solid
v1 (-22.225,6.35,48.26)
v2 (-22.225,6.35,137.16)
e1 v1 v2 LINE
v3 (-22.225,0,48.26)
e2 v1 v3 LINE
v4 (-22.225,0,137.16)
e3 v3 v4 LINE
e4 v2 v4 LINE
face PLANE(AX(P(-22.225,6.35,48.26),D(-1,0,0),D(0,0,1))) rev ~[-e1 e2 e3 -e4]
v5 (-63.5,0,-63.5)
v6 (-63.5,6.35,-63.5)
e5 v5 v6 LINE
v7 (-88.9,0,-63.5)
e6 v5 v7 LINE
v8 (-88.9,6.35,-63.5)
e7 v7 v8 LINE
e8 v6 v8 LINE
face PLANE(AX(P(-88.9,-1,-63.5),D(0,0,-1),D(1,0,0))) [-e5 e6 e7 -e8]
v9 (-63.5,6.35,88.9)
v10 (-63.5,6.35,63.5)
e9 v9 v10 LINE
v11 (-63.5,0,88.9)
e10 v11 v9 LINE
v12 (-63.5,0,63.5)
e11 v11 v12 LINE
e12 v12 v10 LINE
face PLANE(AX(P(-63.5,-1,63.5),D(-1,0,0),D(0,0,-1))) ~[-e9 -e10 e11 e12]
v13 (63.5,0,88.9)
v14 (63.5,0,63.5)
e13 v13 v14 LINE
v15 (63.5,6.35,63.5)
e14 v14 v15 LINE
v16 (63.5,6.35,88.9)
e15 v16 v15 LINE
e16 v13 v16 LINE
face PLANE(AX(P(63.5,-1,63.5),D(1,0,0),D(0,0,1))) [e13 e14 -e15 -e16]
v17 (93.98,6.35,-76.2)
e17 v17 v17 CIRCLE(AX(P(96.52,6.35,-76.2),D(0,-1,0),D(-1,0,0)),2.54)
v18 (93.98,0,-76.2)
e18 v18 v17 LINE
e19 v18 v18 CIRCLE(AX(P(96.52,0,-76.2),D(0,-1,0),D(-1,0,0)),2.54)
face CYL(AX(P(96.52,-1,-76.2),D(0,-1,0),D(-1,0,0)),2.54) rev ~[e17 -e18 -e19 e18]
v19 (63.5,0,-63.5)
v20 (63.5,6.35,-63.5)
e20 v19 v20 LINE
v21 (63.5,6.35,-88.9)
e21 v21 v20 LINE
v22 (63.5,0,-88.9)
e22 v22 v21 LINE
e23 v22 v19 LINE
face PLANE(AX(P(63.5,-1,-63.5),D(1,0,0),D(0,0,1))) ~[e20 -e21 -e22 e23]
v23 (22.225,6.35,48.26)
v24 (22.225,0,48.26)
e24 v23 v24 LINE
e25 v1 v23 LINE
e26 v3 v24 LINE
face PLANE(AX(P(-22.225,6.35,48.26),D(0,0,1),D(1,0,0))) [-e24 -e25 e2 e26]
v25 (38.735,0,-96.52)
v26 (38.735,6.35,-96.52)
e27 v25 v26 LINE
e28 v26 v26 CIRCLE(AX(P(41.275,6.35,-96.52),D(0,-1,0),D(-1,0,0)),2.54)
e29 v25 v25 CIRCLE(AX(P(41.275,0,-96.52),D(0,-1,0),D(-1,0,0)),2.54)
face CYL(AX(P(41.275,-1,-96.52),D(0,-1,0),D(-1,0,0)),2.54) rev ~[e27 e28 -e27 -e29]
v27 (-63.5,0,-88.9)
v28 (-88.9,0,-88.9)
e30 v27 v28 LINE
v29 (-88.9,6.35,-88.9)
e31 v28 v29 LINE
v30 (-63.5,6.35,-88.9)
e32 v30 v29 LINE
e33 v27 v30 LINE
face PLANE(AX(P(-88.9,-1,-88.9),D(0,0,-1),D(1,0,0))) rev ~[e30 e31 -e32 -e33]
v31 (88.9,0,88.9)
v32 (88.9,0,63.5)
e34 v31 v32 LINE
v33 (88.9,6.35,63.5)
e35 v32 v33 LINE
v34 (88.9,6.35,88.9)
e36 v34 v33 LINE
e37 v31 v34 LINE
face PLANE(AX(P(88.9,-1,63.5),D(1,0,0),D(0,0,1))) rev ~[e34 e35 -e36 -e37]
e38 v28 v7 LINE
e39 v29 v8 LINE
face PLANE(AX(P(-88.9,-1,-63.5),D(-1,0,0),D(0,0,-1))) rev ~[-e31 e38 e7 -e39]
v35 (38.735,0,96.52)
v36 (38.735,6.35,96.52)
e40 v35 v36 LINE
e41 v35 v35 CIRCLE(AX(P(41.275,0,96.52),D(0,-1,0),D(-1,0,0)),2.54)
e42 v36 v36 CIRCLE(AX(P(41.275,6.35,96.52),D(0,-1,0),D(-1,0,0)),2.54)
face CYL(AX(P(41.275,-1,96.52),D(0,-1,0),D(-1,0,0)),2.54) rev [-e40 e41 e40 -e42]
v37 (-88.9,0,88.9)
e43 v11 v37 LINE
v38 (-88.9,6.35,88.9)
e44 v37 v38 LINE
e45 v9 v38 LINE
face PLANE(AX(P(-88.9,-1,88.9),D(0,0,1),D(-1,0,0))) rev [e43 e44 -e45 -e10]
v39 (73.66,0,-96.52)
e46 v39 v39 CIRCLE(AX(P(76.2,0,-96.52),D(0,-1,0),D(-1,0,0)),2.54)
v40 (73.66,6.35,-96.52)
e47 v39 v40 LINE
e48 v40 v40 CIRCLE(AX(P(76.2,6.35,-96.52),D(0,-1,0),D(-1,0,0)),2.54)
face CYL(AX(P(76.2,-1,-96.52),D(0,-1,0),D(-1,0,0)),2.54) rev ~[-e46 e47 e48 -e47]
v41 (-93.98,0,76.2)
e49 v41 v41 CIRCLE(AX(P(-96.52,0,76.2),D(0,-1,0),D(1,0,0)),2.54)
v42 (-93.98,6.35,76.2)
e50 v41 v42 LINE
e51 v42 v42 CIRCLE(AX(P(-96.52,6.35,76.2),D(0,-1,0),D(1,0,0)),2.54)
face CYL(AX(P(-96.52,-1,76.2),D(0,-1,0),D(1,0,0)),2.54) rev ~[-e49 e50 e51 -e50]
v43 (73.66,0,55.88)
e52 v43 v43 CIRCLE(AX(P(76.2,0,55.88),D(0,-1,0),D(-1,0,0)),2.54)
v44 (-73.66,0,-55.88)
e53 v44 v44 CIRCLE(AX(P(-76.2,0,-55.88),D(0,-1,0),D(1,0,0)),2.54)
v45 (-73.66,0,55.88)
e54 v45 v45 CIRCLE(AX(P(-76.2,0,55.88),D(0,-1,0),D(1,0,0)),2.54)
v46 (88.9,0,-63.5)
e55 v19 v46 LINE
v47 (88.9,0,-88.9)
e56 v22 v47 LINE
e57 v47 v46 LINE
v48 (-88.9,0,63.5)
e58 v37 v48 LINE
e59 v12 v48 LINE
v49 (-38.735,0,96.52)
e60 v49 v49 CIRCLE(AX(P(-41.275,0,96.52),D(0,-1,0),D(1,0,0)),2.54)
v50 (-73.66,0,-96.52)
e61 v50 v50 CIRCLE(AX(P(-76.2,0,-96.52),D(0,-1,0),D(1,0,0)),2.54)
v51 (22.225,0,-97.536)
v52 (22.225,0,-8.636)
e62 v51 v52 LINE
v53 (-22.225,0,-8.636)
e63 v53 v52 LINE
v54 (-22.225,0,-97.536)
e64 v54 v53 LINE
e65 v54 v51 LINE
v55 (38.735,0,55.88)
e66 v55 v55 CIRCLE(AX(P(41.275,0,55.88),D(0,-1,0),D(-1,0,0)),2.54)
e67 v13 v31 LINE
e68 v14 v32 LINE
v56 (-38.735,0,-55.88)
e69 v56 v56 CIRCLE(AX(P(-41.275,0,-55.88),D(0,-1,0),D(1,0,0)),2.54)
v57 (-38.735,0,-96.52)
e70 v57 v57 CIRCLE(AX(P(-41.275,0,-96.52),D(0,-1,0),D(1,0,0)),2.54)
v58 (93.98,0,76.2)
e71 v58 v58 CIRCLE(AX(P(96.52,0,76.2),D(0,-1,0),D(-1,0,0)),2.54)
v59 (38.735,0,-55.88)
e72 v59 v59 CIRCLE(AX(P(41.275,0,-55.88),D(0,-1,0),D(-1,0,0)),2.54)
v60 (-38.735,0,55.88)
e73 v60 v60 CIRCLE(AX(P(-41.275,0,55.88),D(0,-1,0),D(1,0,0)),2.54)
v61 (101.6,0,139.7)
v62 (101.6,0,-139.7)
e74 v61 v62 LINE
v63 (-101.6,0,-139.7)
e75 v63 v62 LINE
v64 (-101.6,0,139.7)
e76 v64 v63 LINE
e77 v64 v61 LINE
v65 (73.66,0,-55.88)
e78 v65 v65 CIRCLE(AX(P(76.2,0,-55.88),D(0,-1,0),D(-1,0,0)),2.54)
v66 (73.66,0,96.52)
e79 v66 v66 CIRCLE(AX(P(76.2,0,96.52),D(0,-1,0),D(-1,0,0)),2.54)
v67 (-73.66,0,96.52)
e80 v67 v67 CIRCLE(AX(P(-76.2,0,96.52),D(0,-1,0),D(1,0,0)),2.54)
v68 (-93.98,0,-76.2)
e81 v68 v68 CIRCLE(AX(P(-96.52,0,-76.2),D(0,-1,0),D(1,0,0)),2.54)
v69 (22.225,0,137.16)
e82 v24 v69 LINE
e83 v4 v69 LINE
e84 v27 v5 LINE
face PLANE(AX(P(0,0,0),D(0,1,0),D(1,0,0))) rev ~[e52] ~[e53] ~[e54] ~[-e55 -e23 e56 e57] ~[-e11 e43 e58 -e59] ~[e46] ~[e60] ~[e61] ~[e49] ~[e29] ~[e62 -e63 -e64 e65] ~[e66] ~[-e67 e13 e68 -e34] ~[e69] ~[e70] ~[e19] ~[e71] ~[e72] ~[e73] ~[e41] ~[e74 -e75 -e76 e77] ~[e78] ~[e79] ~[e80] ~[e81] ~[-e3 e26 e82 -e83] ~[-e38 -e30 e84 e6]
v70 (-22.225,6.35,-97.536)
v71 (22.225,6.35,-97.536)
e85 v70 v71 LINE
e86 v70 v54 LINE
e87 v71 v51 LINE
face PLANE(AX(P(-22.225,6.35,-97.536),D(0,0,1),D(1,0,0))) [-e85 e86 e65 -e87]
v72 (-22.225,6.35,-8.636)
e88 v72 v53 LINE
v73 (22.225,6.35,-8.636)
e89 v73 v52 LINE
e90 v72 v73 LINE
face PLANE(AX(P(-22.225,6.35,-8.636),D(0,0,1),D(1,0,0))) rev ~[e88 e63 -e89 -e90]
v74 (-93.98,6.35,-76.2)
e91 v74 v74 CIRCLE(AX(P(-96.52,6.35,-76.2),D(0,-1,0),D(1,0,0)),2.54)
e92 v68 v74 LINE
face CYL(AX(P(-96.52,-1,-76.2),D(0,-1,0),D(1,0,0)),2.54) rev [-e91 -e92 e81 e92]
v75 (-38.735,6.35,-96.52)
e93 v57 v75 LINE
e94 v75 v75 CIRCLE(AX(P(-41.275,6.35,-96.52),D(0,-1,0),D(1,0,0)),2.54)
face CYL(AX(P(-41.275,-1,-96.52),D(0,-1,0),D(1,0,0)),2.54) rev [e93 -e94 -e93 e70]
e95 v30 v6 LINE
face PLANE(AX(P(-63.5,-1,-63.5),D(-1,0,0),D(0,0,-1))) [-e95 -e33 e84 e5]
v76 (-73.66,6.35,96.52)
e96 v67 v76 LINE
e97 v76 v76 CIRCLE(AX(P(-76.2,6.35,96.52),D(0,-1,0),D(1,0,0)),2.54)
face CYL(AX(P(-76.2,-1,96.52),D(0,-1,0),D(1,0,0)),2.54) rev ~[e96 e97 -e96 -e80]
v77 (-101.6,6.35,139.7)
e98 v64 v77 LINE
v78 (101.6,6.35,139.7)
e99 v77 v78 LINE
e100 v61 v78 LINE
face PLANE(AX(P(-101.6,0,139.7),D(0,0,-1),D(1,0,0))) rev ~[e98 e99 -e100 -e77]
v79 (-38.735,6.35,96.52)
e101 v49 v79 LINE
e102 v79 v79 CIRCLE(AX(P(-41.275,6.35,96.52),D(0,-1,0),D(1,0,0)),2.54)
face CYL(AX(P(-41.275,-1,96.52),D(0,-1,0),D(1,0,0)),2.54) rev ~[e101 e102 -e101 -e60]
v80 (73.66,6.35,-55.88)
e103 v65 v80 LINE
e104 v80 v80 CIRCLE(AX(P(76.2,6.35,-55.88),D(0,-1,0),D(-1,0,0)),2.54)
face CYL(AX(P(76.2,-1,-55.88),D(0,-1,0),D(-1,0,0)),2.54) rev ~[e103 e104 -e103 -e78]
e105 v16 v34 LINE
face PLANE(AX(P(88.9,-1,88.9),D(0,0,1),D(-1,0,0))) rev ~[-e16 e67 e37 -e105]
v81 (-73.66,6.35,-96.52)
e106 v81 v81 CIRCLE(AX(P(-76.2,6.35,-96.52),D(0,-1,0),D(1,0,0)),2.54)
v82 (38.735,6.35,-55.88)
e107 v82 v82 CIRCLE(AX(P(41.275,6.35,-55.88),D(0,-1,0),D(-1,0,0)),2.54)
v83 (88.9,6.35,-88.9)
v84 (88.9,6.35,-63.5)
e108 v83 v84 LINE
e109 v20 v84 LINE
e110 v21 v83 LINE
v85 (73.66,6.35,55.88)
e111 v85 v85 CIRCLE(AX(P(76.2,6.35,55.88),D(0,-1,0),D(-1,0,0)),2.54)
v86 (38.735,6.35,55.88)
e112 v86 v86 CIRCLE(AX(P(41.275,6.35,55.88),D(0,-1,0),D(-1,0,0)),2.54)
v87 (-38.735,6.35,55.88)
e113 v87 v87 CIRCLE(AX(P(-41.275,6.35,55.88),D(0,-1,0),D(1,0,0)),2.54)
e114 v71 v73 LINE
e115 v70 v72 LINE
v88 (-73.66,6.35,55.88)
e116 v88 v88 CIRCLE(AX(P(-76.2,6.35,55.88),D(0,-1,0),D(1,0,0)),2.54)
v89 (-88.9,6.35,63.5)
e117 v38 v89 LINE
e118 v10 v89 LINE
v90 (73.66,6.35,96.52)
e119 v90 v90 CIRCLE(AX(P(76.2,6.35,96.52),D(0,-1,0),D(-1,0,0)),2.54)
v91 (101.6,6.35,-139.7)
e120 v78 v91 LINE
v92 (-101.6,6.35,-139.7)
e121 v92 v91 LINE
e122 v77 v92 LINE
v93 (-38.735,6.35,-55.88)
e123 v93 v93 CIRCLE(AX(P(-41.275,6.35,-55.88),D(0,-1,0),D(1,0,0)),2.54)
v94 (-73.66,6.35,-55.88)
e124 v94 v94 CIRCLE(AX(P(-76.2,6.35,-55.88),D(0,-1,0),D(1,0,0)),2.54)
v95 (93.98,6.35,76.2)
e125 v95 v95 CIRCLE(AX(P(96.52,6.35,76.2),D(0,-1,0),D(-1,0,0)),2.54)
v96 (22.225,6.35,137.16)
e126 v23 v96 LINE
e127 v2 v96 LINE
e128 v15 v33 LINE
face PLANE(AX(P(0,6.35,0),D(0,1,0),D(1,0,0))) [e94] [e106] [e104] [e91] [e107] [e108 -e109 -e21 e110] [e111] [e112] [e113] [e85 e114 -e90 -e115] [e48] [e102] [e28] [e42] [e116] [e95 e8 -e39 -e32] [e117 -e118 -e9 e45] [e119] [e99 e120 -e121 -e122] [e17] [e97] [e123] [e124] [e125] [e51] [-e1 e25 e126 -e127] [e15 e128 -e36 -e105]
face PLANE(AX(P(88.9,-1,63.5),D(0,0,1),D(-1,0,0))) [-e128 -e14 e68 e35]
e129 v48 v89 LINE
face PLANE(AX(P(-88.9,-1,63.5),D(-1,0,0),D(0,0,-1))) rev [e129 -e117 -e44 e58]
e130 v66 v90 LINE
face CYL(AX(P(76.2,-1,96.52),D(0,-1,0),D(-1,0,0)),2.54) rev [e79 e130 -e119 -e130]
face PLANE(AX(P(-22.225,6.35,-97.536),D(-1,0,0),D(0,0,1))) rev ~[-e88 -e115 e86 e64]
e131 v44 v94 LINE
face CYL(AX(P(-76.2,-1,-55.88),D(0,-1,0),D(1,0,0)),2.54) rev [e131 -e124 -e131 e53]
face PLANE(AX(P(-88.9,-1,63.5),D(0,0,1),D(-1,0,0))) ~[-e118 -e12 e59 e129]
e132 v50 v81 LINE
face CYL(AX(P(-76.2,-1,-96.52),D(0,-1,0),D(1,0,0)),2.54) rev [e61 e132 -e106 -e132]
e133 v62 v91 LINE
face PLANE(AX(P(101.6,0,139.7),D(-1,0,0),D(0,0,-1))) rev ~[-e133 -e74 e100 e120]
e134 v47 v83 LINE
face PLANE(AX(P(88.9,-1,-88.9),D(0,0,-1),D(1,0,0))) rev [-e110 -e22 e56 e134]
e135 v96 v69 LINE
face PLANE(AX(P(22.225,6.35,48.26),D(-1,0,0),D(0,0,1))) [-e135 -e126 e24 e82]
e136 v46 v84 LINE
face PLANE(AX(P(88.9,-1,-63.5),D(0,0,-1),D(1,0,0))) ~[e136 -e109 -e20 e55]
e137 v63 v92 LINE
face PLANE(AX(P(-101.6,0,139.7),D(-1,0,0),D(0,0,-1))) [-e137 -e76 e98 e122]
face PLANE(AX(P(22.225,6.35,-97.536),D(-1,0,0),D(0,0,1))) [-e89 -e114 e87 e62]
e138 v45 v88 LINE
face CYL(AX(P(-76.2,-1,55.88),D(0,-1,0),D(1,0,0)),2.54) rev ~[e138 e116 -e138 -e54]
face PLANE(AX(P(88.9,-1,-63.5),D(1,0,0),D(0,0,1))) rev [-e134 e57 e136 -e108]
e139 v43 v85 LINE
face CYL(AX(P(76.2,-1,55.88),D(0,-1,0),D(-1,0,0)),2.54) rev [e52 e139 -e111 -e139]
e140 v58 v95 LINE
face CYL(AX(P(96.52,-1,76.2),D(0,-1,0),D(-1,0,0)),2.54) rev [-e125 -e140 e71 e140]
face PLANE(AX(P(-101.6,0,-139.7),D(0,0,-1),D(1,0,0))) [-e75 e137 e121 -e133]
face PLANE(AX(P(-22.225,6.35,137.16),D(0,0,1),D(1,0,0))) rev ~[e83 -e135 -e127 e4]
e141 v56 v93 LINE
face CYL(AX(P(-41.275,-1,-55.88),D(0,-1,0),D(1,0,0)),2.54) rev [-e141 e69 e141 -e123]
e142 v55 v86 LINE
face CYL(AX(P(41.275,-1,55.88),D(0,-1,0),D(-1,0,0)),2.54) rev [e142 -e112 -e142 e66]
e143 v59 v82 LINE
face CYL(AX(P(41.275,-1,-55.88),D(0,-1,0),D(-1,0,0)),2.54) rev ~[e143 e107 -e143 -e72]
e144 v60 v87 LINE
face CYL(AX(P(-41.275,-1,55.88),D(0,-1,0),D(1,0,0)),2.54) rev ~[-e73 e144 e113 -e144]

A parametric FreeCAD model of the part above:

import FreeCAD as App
import Part
import Sketcher

V = App.Vector
Q = App.Units.Quantity


def add_polygon(sketch, points):
    """Adds a closed chain of lines whose ends are joined by coincident constraints."""
    first, n = sketch.GeometryCount, len(points)
    for a, b in zip(points, points[1:] + points[:1]):
        sketch.addGeometry(Part.LineSegment(App.Vector(*a, 0), App.Vector(*b, 0)), False)
    for i in range(n):
        sketch.addConstraint(Sketcher.Constraint("Coincident", first + i, 2, first + (i + 1) % n, 1))

doc = App.newDocument("Part")
params = doc.addObject("Spreadsheet::Sheet", "Params")
for row, (alias, value) in enumerate([
    ("sketch1_width", "8 in"),
    ("sketch1_height", "11 in"),
    ("pad1_length", "0.25 in"),
    ("sketch2_diameter", "0.2 in"),
    ("sketch2_width", "1 in"),
    ("pocket1_length", "8.35 mm"),
    ("sketch3_diameter", "0.2 in"),
    ("sketch3_width", "1 in"),
    ("pocket2_length", "8.35 mm"),
    ("sketch4_height", "3.5 in"),
    ("sketch4_width", "1.75 in"),
], start=1):
    params.set(f"A{row}", alias)
    params.set(f"B{row}", "=" + value)
    params.setAlias(f"B{row}", alias)

body = doc.addObject("PartDesign::Body", "Body")

# Sketch on XZ plane
sketch1 = doc.addObject("Sketcher::SketchObject", "Sketch")
body.addObject(sketch1)
sketch1.AttachmentSupport = (doc.XZ_Plane, [""])
sketch1.MapMode = "FlatFace"
add_polygon(sketch1, [(-102, -140), (-102, 140), (102, 140), (102, -140)])  # lines 0-3
sketch1.addConstraint(Sketcher.Constraint("Vertical", 0))
sketch1.addConstraint(Sketcher.Constraint("Horizontal", 1))
sketch1.addConstraint(Sketcher.Constraint("Vertical", 2))
sketch1.addConstraint(Sketcher.Constraint("Horizontal", 3))
sketch1.addConstraint(Sketcher.Constraint("Symmetric", 0, 2, 2, 2, -1, 1))
sketch1.addConstraint(Sketcher.Constraint("DistanceX", 1, 1, 1, 2, Q("8 in")))
sketch1.addConstraint(Sketcher.Constraint("DistanceY", 0, 1, 0, 2, Q("11 in")))
sketch1.setExpression("Constraints[9]", "Params.sketch1_width")
sketch1.setExpression("Constraints[10]", "Params.sketch1_height")
pad1 = doc.addObject("PartDesign::Pad", "Pad")
body.addObject(pad1)
pad1.Profile = sketch1
pad1.setExpression("Length", "Params.pad1_length")
pad1.Reversed = True

# Sketch on XZ plane
sketch2 = doc.addObject("Sketcher::SketchObject", "Sketch001")
body.addObject(sketch2)
sketch2.AttachmentSupport = (doc.XZ_Plane, [""])
sketch2.MapMode = "FlatFace"
sketch2.AttachmentOffset = App.Placement(V(0, 0, 1), App.Rotation())
sketch2.addGeometry(Part.Circle(V(-41.3, -55.9, 0), V(0, 0, 1), 2.5), False)  # 0
sketch2.addGeometry(Part.Circle(V(-41.3, -96.5, 0), V(0, 0, 1), 2.5), False)  # 1
sketch2.addGeometry(Part.Circle(V(-76.2, -55.9, 0), V(0, 0, 1), 2.5), False)  # 2
sketch2.addGeometry(Part.Circle(V(-96.5, -76.2, 0), V(0, 0, 1), 2.5), False)  # 3
sketch2.addGeometry(Part.Circle(V(-76.2, -96.5, 0), V(0, 0, 1), 2.5), False)  # 4
add_polygon(sketch2, [(-88.9, -88.9), (-88.9, -63.5), (-63.5, -63.5), (-63.5, -88.9)])  # lines 5-8
sketch2.addConstraint(Sketcher.Constraint("Vertical", 5))
sketch2.addConstraint(Sketcher.Constraint("Horizontal", 6))
sketch2.addConstraint(Sketcher.Constraint("Vertical", 7))
sketch2.addConstraint(Sketcher.Constraint("Horizontal", 8))
sketch2.addConstraint(Sketcher.Constraint("Equal", 0, 1))
sketch2.addConstraint(Sketcher.Constraint("Equal", 1, 2))
sketch2.addConstraint(Sketcher.Constraint("Equal", 2, 3))
sketch2.addConstraint(Sketcher.Constraint("Equal", 3, 4))
sketch2.addConstraint(Sketcher.Constraint("Horizontal", 0, 3, 2, 3))
sketch2.addConstraint(Sketcher.Constraint("Horizontal", 1, 3, 4, 3))
sketch2.addConstraint(Sketcher.Constraint("Vertical", 0, 3, 1, 3))
sketch2.addConstraint(Sketcher.Constraint("Vertical", 2, 3, 4, 3))
sketch2.addConstraint(Sketcher.Constraint("Equal", 8, 5))
sketch2.addConstraint(Sketcher.Constraint("Diameter", 0, Q("0.2 in")))
sketch2.addConstraint(Sketcher.Constraint("DistanceX", 6, 1, 6, 2, Q("1 in")))
sketch2.addConstraint(Sketcher.Constraint("DistanceX", 2, 3, -1, 1, Q("3 in")))
sketch2.addConstraint(Sketcher.Constraint("DistanceY", 3, 3, -1, 1, Q("3 in")))
sketch2.addConstraint(Sketcher.Constraint("DistanceY", 0, 3, -1, 1, Q("2.2 in")))
sketch2.addConstraint(Sketcher.Constraint("DistanceY", 1, 3, -1, 1, Q("3.8 in")))
sketch2.addConstraint(Sketcher.Constraint("DistanceX", 3, 3, -1, 1, Q("3.8 in")))
sketch2.addConstraint(Sketcher.Constraint("DistanceX", 5, 2, -1, 1, Q("3.5 in")))
sketch2.addConstraint(Sketcher.Constraint("DistanceY", 5, 2, -1, 1, Q("2.5 in")))
sketch2.addConstraint(Sketcher.Constraint("DistanceX", 0, 3, -1, 1, Q("1.625 in")))
sketch2.setExpression("Constraints[17]", "Params.sketch2_diameter")
sketch2.setExpression("Constraints[18]", "Params.sketch2_width")
pocket1 = doc.addObject("PartDesign::Pocket", "Pocket")
body.addObject(pocket1)
pocket1.Profile = sketch2
pocket1.setExpression("Length", "Params.pocket1_length")
doc.recompute()

mirrored = doc.addObject("PartDesign::Mirrored", "Mirrored")
body.addObject(mirrored)
mirrored.Originals = [pocket1]
mirrored.MirrorPlane = (doc.XY_Plane, [""])
body.Tip = mirrored
doc.recompute()

mirrored2 = doc.addObject("PartDesign::Mirrored", "Mirrored001")
body.addObject(mirrored2)
mirrored2.Originals = [pocket1]
mirrored2.MirrorPlane = (doc.YZ_Plane, [""])
body.Tip = mirrored2

# Sketch on XZ plane
sketch3 = doc.addObject("Sketcher::SketchObject", "Sketch002")
body.addObject(sketch3)
sketch3.AttachmentSupport = (doc.XZ_Plane, [""])
sketch3.MapMode = "FlatFace"
sketch3.AttachmentOffset = App.Placement(V(0, 0, 1), App.Rotation())
sketch3.addGeometry(Part.Circle(V(41.3, 55.9, 0), V(0, 0, 1), 2.5), False)  # 0
sketch3.addGeometry(Part.Circle(V(41.3, 96.5, 0), V(0, 0, 1), 2.5), False)  # 1
sketch3.addGeometry(Part.Circle(V(76.2, 55.9, 0), V(0, 0, 1), 2.5), False)  # 2
sketch3.addGeometry(Part.Circle(V(96.5, 76.2, 0), V(0, 0, 1), 2.5), False)  # 3
sketch3.addGeometry(Part.Circle(V(76.2, 96.5, 0), V(0, 0, 1), 2.5), False)  # 4
add_polygon(sketch3, [(88.9, 88.9), (88.9, 63.5), (63.5, 63.5), (63.5, 88.9)])  # lines 5-8
sketch3.addConstraint(Sketcher.Constraint("Vertical", 5))
sketch3.addConstraint(Sketcher.Constraint("Horizontal", 6))
sketch3.addConstraint(Sketcher.Constraint("Vertical", 7))
sketch3.addConstraint(Sketcher.Constraint("Horizontal", 8))
sketch3.addConstraint(Sketcher.Constraint("Equal", 0, 1))
sketch3.addConstraint(Sketcher.Constraint("Equal", 1, 2))
sketch3.addConstraint(Sketcher.Constraint("Equal", 2, 3))
sketch3.addConstraint(Sketcher.Constraint("Equal", 3, 4))
sketch3.addConstraint(Sketcher.Constraint("Horizontal", 0, 3, 2, 3))
sketch3.addConstraint(Sketcher.Constraint("Horizontal", 1, 3, 4, 3))
sketch3.addConstraint(Sketcher.Constraint("Vertical", 0, 3, 1, 3))
sketch3.addConstraint(Sketcher.Constraint("Vertical", 2, 3, 4, 3))
sketch3.addConstraint(Sketcher.Constraint("Equal", 8, 5))
sketch3.addConstraint(Sketcher.Constraint("Diameter", 0, Q("0.2 in")))
sketch3.addConstraint(Sketcher.Constraint("DistanceX", 6, 2, 6, 1, Q("1 in")))
sketch3.addConstraint(Sketcher.Constraint("DistanceX", -1, 1, 2, 3, Q("3 in")))
sketch3.addConstraint(Sketcher.Constraint("DistanceY", -1, 1, 3, 3, Q("3 in")))
sketch3.addConstraint(Sketcher.Constraint("DistanceY", -1, 1, 0, 3, Q("2.2 in")))
sketch3.addConstraint(Sketcher.Constraint("DistanceY", -1, 1, 1, 3, Q("3.8 in")))
sketch3.addConstraint(Sketcher.Constraint("DistanceX", -1, 1, 3, 3, Q("3.8 in")))
sketch3.addConstraint(Sketcher.Constraint("DistanceX", -1, 1, 5, 2, Q("3.5 in")))
sketch3.addConstraint(Sketcher.Constraint("DistanceY", -1, 1, 5, 2, Q("2.5 in")))
sketch3.addConstraint(Sketcher.Constraint("DistanceX", -1, 1, 0, 3, Q("1.625 in")))
sketch3.setExpression("Constraints[17]", "Params.sketch3_diameter")
sketch3.setExpression("Constraints[18]", "Params.sketch3_width")
pocket2 = doc.addObject("PartDesign::Pocket", "Pocket001")
body.addObject(pocket2)
pocket2.Profile = sketch3
pocket2.setExpression("Length", "Params.pocket2_length")

# Sketch on XZ plane
sketch4 = doc.addObject("Sketcher::SketchObject", "Sketch003")
body.addObject(sketch4)
sketch4.AttachmentSupport = (doc.XZ_Plane, [""])
sketch4.MapMode = "FlatFace"
sketch4.AttachmentOffset = App.Placement(V(0, 0, -0.25 * 25.4), App.Rotation())
add_polygon(sketch4, [(22, -98), (-22, -98), (-22, -9), (22, -9)])  # lines 0-3
add_polygon(sketch4, [(22, 48), (-22, 48), (-22, 137), (22, 137)])  # lines 4-7
sketch4.addConstraint(Sketcher.Constraint("Horizontal", 0))
sketch4.addConstraint(Sketcher.Constraint("Vertical", 1))
sketch4.addConstraint(Sketcher.Constraint("Horizontal", 2))
sketch4.addConstraint(Sketcher.Constraint("Vertical", 3))
sketch4.addConstraint(Sketcher.Constraint("Horizontal", 4))
sketch4.addConstraint(Sketcher.Constraint("Vertical", 5))
sketch4.addConstraint(Sketcher.Constraint("Horizontal", 6))
sketch4.addConstraint(Sketcher.Constraint("Vertical", 7))
sketch4.addConstraint(Sketcher.Constraint("Vertical", 1, 2, 4, 2))
sketch4.addConstraint(Sketcher.Constraint("Vertical", 3, 2, 6, 2))
sketch4.addConstraint(Sketcher.Constraint("Equal", 3, 5))
sketch4.addConstraint(Sketcher.Constraint("DistanceY", 1, 1, 1, 2, Q("3.5 in")))
sketch4.addConstraint(Sketcher.Constraint("DistanceX", 0, 2, 0, 1, Q("1.75 in")))
sketch4.addConstraint(Sketcher.Constraint("DistanceY", -1, 1, 4, 2, Q("1.9 in")))
sketch4.addConstraint(Sketcher.Constraint("DistanceY", 0, 2, -1, 1, Q("3.84 in")))
sketch4.addConstraint(Sketcher.Constraint("DistanceX", 0, 2, -1, 1, Q("0.875 in")))
sketch4.setExpression("Constraints[19]", "Params.sketch4_height")
sketch4.setExpression("Constraints[20]", "Params.sketch4_width")
pocket3 = doc.addObject("PartDesign::Pocket", "Pocket002")
body.addObject(pocket3)
pocket3.Profile = sketch4
pocket3.Type = "ThroughAll"
pocket3.Midplane = True

doc.recompute()
